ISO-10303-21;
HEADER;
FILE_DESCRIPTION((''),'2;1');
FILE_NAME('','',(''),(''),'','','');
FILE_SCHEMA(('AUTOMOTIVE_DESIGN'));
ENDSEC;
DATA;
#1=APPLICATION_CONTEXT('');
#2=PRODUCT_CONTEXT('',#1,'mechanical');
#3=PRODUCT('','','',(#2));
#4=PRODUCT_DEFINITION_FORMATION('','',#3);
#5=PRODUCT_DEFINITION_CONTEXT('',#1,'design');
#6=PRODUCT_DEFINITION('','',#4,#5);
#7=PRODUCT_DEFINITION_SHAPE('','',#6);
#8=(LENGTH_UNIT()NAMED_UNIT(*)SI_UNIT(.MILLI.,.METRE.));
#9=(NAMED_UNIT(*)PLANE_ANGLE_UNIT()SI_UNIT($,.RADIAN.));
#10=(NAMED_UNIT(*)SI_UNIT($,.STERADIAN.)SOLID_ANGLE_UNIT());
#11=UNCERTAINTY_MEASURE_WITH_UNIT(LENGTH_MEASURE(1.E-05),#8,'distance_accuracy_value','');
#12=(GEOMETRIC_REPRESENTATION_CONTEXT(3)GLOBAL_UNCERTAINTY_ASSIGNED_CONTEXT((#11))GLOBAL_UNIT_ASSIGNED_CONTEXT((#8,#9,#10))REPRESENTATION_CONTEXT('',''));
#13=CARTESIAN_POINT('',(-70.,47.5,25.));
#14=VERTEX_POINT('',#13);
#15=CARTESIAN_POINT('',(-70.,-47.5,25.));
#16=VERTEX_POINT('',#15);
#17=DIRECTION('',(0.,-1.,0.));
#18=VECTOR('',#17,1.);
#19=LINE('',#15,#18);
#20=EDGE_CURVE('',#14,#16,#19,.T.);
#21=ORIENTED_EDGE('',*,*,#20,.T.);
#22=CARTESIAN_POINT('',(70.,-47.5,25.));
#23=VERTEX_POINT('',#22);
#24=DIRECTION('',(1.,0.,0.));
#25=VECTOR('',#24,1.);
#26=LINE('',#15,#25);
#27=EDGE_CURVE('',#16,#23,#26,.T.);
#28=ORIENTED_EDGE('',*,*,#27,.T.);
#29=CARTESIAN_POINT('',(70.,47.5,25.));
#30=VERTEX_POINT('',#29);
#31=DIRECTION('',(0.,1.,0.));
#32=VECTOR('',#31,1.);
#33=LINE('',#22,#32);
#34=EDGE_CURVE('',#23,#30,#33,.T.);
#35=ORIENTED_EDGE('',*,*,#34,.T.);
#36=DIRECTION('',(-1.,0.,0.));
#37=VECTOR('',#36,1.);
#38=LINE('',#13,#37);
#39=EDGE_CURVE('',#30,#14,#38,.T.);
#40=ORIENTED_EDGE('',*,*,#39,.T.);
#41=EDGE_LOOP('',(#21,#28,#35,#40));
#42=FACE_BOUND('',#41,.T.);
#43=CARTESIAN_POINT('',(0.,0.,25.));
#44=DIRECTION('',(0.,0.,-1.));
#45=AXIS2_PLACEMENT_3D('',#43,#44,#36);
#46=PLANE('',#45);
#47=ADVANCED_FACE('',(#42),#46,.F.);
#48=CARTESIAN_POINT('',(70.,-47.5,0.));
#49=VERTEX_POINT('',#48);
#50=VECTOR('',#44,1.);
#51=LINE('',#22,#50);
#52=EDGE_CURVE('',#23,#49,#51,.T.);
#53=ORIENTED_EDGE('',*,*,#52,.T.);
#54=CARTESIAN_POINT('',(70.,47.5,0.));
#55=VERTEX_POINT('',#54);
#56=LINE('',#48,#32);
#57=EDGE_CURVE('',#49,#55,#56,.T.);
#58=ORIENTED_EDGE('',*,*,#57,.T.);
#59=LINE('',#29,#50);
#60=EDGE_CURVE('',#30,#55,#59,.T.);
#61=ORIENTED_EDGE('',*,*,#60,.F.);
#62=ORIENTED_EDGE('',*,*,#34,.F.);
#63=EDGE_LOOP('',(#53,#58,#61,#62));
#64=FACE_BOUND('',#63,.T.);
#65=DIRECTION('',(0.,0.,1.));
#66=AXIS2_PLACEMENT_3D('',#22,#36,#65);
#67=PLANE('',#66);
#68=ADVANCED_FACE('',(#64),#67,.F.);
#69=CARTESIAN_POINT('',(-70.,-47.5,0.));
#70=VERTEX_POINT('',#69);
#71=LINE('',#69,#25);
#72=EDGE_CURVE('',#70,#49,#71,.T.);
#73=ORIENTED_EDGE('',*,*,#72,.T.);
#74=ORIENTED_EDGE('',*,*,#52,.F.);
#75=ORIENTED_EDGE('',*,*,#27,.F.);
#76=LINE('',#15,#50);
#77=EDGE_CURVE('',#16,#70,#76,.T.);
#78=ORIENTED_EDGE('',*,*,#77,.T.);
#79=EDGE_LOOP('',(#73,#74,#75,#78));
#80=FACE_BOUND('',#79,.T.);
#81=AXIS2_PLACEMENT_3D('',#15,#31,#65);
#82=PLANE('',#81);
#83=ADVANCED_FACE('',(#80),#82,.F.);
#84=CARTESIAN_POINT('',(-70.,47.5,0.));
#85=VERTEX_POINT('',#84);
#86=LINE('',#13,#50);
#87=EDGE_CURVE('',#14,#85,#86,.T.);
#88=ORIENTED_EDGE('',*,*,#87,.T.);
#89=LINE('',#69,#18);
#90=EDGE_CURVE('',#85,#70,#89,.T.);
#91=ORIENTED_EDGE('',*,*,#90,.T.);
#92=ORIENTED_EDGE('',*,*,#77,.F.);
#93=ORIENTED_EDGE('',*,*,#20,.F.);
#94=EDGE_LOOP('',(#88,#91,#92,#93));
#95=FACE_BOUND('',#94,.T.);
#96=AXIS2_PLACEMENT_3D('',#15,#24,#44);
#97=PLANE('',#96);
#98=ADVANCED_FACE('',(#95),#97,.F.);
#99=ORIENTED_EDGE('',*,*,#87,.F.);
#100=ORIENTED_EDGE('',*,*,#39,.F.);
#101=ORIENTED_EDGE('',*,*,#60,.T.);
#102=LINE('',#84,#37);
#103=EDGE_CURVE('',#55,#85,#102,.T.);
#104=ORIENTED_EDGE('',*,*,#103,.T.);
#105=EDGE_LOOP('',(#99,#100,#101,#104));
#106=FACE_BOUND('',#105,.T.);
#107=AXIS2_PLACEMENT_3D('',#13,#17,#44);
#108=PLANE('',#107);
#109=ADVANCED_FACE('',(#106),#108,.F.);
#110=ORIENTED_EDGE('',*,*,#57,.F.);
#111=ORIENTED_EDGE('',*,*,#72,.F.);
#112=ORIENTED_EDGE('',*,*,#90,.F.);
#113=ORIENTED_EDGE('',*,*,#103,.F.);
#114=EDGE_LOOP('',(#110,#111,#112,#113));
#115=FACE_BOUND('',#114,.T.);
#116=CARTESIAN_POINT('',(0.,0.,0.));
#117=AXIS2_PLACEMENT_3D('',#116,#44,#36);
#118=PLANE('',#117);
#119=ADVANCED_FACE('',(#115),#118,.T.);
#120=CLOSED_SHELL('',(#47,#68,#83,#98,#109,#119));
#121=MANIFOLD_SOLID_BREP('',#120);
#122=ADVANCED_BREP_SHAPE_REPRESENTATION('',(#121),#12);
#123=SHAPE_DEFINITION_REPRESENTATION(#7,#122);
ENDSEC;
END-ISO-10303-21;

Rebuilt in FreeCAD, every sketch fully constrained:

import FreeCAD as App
import Part
import Sketcher
from FreeCAD import Vector
Q = App.Units.Quantity


def add_polygon(sketch, points):
    """Adds a closed chain of lines whose ends are joined by coincident constraints."""
    first, n = sketch.GeometryCount, len(points)
    for a, b in zip(points, points[1:] + points[:1]):
        sketch.addGeometry(Part.LineSegment(App.Vector(*a, 0), App.Vector(*b, 0)), False)
    for i in range(n):
        sketch.addConstraint(Sketcher.Constraint("Coincident", first + i, 2, first + (i + 1) % n, 1))

doc = App.newDocument("Part")
params = doc.addObject("Spreadsheet::Sheet", "Params")
for row, (alias, value) in enumerate([
    ("sketch1_width", "140 mm"),
    ("sketch1_height", "95 mm"),
    ("pad1_length", "25 mm"),
], start=1):
    params.set(f"A{row}", alias)
    params.set(f"B{row}", "=" + value)
    params.setAlias(f"B{row}", alias)

body = doc.addObject("PartDesign::Body", "Body")

sketch1 = body.newObject("Sketcher::SketchObject", "Sketch")
sketch1.AttachmentSupport = (doc.getObject("XY_Plane"), [""])
sketch1.MapMode = "FlatFace"
add_polygon(sketch1, [(-70, 47.5), (-70, -47.5), (70, -47.5), (70, 47.5)])
sketch1.addConstraint(Sketcher.Constraint("Vertical", 0))
sketch1.addConstraint(Sketcher.Constraint("Horizontal", 1))
sketch1.addConstraint(Sketcher.Constraint("Vertical", 2))
sketch1.addConstraint(Sketcher.Constraint("Horizontal", 3))
sketch1.addConstraint(Sketcher.Constraint("Symmetric", 0, 2, 2, 2, -1, 1))
sketch1.addConstraint(Sketcher.Constraint("DistanceX", 1, 1, 1, 2, Q("140 mm")))
sketch1.addConstraint(Sketcher.Constraint("DistanceY", 0, 2, 0, 1, Q("95 mm")))
sketch1.setExpression("Constraints[9]", "Params.sketch1_width")
sketch1.setExpression("Constraints[10]", "Params.sketch1_height")
pad1 = body.newObject("PartDesign::Pad", "Pad")
pad1.Profile = sketch1
pad1.setExpression("Length", "Params.pad1_length")

doc.recompute()
